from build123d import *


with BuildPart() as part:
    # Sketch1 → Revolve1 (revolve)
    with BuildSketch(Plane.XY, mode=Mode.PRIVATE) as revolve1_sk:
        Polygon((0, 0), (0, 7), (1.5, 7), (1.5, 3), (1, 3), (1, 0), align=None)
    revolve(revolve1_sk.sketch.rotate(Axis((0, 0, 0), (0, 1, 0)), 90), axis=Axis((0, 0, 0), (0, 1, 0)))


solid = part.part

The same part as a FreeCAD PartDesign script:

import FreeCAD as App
import Part
import Sketcher

V = App.Vector


def add_polygon(sketch, points):
    """Adds a closed chain of lines whose ends are joined by coincident constraints."""
    first, n = sketch.GeometryCount, len(points)
    for a, b in zip(points, points[1:] + points[:1]):
        sketch.addGeometry(Part.LineSegment(App.Vector(*a, 0), App.Vector(*b, 0)), False)
    for i in range(n):
        sketch.addConstraint(Sketcher.Constraint("Coincident", first + i, 2, first + (i + 1) % n, 1))

doc = App.newDocument("Part")
params = doc.addObject("Spreadsheet::Sheet", "Params")
for row, (alias, value) in enumerate([
    ("sketch1_width", "1 mm"),
    ("sketch1_height", "7 mm"),
    ("sketch1_height2", "3 mm"),
    ("sketch1_width2", "0.5 mm"),
    ("revolution_angle", "360 deg"),
], start=1):
    params.set(f"A{row}", alias)
    params.set(f"B{row}", "=" + value)
    params.setAlias(f"B{row}", alias)

body = doc.addObject("PartDesign::Body", "Body")

sketch1 = body.newObject("Sketcher::SketchObject", "Sketch")
sketch1.AttachmentSupport = (doc.getObject("XY_Plane"), [""])
sketch1.MapMode = "FlatFace"
add_polygon(sketch1, [(0, 7), (0, 0), (1, 0), (1, 3), (1.5, 3), (1.5, 7)])
sketch1.addConstraint([
    Sketcher.Constraint("Vertical", 0),
    Sketcher.Constraint("Horizontal", 1),
    Sketcher.Constraint("Vertical", 2),
    Sketcher.Constraint("Horizontal", 3),
    Sketcher.Constraint("Vertical", 4),
    Sketcher.Constraint("Horizontal", 5),
    Sketcher.Constraint("Coincident", 0, 2, -1, 1),
    Sketcher.Constraint("DistanceX", 1, 1, 1, 2, 1.0),
    Sketcher.Constraint("DistanceY", 0, 2, 0, 1, 7.0),
    Sketcher.Constraint("DistanceY", 2, 1, 2, 2, 3.0),
    Sketcher.Constraint("DistanceX", 3, 1, 3, 2, 0.5),
])
sketch1.setExpression("Constraints[13]", "Params.sketch1_width")
sketch1.setExpression("Constraints[14]", "Params.sketch1_height")
sketch1.setExpression("Constraints[15]", "Params.sketch1_height2")
sketch1.setExpression("Constraints[16]", "Params.sketch1_width2")
revolution = body.newObject("PartDesign::Revolution", "Revolution")
revolution.Profile = sketch1
revolution.ReferenceAxis = (sketch1, ["V_Axis"])
revolution.setExpression("Angle", "Params.revolution_angle")

doc.recompute()
